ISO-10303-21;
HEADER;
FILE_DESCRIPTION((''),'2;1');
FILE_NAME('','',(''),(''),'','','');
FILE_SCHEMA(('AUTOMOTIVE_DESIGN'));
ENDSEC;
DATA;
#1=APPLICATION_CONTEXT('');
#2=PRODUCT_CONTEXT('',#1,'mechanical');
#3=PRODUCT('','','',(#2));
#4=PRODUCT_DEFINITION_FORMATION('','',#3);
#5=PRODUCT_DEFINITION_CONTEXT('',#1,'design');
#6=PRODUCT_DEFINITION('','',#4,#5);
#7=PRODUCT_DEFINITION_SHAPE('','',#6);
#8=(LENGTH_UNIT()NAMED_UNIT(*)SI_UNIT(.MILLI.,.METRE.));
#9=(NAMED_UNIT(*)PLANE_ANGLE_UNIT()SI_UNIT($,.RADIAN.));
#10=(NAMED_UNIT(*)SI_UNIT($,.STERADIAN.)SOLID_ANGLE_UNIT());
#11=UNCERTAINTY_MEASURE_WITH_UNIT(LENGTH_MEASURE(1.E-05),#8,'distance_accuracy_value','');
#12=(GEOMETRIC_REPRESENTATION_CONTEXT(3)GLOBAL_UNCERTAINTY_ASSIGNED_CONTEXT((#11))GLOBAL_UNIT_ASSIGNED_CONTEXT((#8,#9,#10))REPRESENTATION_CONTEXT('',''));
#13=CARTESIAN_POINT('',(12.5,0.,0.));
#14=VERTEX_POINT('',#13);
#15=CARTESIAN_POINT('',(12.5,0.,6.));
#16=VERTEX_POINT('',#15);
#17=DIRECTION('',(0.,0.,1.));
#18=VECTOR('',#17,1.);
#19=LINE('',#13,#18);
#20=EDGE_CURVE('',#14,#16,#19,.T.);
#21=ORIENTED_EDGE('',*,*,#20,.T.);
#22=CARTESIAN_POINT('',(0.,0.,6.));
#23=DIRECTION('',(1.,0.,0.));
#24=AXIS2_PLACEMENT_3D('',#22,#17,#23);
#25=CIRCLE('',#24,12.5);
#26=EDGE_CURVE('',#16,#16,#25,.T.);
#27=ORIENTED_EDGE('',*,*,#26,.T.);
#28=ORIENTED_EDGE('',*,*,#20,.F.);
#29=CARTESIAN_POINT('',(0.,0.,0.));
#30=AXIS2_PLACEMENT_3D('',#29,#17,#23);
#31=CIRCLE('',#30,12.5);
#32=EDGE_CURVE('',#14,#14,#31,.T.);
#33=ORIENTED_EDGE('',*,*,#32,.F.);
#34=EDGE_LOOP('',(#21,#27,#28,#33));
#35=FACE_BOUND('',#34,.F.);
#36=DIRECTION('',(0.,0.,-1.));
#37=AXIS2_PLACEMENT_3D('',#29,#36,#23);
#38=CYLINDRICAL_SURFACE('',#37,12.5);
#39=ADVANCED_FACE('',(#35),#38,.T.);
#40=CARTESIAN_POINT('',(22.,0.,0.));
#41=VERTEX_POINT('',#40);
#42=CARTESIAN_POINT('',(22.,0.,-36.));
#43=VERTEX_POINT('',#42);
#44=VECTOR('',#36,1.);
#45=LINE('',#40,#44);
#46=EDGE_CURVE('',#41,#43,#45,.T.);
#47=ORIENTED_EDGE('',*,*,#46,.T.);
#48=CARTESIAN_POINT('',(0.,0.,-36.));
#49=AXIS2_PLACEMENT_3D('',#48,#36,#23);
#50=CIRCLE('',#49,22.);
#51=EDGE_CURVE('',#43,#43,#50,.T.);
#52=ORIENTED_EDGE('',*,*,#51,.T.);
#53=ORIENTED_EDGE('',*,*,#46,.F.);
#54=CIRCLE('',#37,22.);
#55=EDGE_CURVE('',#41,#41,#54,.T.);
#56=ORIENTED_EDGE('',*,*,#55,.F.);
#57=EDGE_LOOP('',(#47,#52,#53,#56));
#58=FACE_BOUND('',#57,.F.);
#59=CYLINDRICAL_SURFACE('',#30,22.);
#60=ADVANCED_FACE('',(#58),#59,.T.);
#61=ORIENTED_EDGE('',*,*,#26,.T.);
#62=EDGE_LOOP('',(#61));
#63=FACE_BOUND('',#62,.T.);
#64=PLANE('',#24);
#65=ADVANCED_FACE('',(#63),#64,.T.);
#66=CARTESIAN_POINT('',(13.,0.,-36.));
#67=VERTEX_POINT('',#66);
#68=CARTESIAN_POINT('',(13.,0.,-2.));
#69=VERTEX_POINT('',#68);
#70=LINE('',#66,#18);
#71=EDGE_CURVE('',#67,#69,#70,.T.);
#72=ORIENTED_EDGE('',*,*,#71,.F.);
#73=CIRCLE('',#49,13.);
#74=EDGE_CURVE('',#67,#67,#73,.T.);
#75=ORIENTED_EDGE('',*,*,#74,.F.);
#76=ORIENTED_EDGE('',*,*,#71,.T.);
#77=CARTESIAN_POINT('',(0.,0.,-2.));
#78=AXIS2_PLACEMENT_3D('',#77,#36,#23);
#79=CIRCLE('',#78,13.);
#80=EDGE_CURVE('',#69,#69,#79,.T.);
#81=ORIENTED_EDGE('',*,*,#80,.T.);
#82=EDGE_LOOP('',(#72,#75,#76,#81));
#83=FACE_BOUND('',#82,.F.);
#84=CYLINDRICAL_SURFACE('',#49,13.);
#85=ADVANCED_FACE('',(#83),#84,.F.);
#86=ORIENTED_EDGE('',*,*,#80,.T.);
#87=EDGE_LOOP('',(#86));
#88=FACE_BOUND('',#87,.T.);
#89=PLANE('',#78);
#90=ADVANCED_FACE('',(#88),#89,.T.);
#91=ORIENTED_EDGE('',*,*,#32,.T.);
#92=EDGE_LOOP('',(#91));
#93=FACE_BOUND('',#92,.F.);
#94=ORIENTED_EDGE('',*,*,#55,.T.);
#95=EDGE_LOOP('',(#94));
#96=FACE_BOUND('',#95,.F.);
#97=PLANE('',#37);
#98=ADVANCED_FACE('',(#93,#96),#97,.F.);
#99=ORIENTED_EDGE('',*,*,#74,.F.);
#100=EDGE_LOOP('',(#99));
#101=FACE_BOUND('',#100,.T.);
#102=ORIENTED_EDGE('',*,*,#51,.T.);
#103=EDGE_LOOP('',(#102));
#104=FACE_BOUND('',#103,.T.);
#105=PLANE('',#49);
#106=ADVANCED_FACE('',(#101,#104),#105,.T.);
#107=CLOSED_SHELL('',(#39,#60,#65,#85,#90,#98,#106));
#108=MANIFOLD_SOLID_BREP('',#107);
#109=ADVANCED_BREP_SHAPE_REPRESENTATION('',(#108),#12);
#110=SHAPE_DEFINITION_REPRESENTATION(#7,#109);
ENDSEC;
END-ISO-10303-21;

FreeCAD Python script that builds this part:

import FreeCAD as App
import Part
import Sketcher
from FreeCAD import Vector

doc = App.newDocument("Part")
body = doc.addObject("PartDesign::Body", "Body")

sketch1 = body.newObject("Sketcher::SketchObject", "Sketch")
sketch1.AttachmentSupport = (doc.getObject("XY_Plane"), [""])
sketch1.MapMode = "FlatFace"
sketch1.addGeometry(Part.Circle(Vector(0, 0, 0), Vector(0, 0, 1), 12.5), False)
sketch1.addConstraint(Sketcher.Constraint("Coincident", 0, 3, -1, 1))
sketch1.addConstraint(Sketcher.Constraint("Diameter", 0, 25.0))
pad1 = body.newObject("PartDesign::Pad", "Pad")
pad1.Profile = sketch1
pad1.Length = 6

sketch2 = body.newObject("Sketcher::SketchObject", "Sketch001")
sketch2.AttachmentSupport = (doc.getObject("XY_Plane"), [""])
sketch2.MapMode = "FlatFace"
sketch2.addGeometry(Part.Circle(Vector(0, 0, 0), Vector(0, 0, 1), 22), False)
sketch2.addConstraint(Sketcher.Constraint("Coincident", 0, 3, -1, 1))
sketch2.addConstraint(Sketcher.Constraint("Diameter", 0, 44.0))
pad2 = body.newObject("PartDesign::Pad", "Pad001")
pad2.Profile = sketch2
pad2.Length = 36
pad2.Reversed = True

sketch3 = body.newObject("Sketcher::SketchObject", "Sketch002")
sketch3.AttachmentSupport = (doc.getObject("XY_Plane"), [""])
sketch3.MapMode = "FlatFace"
sketch3.AttachmentOffset = App.Placement(Vector(0, 0, -36), App.Rotation())
sketch3.addGeometry(Part.Circle(Vector(0, 0, 0), Vector(0, 0, 1), 13), False)
sketch3.addConstraint(Sketcher.Constraint("Coincident", 0, 3, -1, 1))
sketch3.addConstraint(Sketcher.Constraint("Diameter", 0, 26.0))
pocket1 = body.newObject("PartDesign::Pocket", "Pocket")
pocket1.Profile = sketch3
pocket1.Length = 34
pocket1.Reversed = True

doc.recompute()
